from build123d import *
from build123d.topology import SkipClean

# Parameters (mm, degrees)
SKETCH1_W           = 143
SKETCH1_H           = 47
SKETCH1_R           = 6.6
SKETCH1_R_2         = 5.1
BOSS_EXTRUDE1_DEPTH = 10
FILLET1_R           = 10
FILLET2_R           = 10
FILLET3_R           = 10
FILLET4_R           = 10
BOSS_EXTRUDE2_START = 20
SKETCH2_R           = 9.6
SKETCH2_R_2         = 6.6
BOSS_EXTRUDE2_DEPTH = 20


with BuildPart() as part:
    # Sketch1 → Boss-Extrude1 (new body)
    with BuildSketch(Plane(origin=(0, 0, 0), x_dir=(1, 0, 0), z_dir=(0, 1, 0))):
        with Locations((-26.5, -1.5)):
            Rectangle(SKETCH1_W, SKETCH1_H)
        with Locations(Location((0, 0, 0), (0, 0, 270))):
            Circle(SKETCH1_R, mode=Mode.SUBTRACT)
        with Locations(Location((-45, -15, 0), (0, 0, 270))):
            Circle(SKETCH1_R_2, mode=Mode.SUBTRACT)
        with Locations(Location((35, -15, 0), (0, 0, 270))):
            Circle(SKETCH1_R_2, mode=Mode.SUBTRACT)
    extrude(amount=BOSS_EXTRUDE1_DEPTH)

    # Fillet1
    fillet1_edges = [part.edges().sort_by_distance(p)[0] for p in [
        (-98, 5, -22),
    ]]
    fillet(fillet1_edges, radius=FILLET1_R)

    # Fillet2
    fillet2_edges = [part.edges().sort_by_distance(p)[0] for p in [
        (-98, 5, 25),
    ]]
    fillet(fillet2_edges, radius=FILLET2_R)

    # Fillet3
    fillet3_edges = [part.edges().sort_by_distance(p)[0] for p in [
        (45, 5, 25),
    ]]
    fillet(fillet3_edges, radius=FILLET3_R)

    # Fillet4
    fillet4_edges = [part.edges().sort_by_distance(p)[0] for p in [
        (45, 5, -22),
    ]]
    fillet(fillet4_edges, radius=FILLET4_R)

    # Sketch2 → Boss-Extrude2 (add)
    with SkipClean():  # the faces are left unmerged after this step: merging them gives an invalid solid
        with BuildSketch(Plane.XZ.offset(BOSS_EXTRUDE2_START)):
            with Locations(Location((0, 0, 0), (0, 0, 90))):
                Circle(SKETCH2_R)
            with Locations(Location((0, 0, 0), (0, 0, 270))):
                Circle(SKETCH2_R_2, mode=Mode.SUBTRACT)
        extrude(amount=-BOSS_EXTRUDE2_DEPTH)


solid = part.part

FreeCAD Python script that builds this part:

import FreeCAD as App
import Part
import Sketcher
Q = App.Units.Quantity


def edges_at(feature, points):
    """Names of the edges that pass closest to the given points."""
    edges = feature.Shape.Edges
    near = lambda p: min(range(len(edges)), key=lambda i: edges[i].distToShape(Part.Vertex(*p))[0])
    return sorted({f"Edge{near(p) + 1}" for p in points})


def add_polygon(sketch, points):
    """Adds a closed chain of lines whose ends are joined by coincident constraints."""
    first, n = sketch.GeometryCount, len(points)
    for a, b in zip(points, points[1:] + points[:1]):
        sketch.addGeometry(Part.LineSegment(App.Vector(*a, 0), App.Vector(*b, 0)), False)
    for i in range(n):
        sketch.addConstraint(Sketcher.Constraint("Coincident", first + i, 2, first + (i + 1) % n, 1))

doc = App.newDocument("Part")
body = doc.addObject("PartDesign::Body", "Body")

# Sketch on XZ plane
sketch1 = body.newObject("Sketcher::SketchObject", "Sketch")
sketch1.AttachmentSupport = (doc.getObject("XZ_Plane"), [""])
sketch1.MapMode = "FlatFace"
add_polygon(sketch1, [(-98, -22), (-98, 25), (45, 25), (45, -22)])  # lines 0-3
sketch1.addGeometry(Part.Circle(App.Vector(-45, 15, 0), App.Vector(0, 0, 1), 5), False)  # 4
sketch1.addGeometry(Part.Circle(App.Vector(35, 15, 0), App.Vector(0, 0, 1), 5), False)  # 5
sketch1.addGeometry(Part.Circle(App.Vector(0, 0, 0), App.Vector(0, 0, 1), 7), False)  # 6
sketch1.addConstraint([
    Sketcher.Constraint("Vertical", 0),
    Sketcher.Constraint("Horizontal", 1),
    Sketcher.Constraint("Vertical", 2),
    Sketcher.Constraint("Horizontal", 3),
    Sketcher.Constraint("Coincident", 6, 3, -1, 1),
    Sketcher.Constraint("Equal", 4, 5),
    Sketcher.Constraint("Horizontal", 4, 3, 5, 3),
    Sketcher.Constraint("Diameter", 4, Q("10.2 mm")),
    Sketcher.Constraint("Diameter", 6, Q("13.2 mm")),
    Sketcher.Constraint("DistanceX", 1, 1, 1, 2, Q("143 mm")),
    Sketcher.Constraint("DistanceY", 0, 1, 0, 2, Q("47 mm")),
    Sketcher.Constraint("DistanceX", 4, 3, -1, 1, Q("45 mm")),
    Sketcher.Constraint("DistanceY", -1, 1, 4, 3, Q("15 mm")),
    Sketcher.Constraint("DistanceX", -1, 1, 5, 3, Q("35 mm")),
    Sketcher.Constraint("DistanceX", 0, 2, -1, 1, Q("98 mm")),
    Sketcher.Constraint("DistanceY", -1, 1, 0, 2, Q("25 mm")),
])
pad1 = body.newObject("PartDesign::Pad", "Pad")
pad1.Profile = sketch1
pad1.Length = 10
pad1.Reversed = True
doc.recompute()

fillet = body.newObject("PartDesign::Fillet", "Fillet")
fillet.Base = (pad1, edges_at(pad1, [(-98, 5, -22)]))
fillet.Radius = 10
doc.recompute()

fillet2 = body.newObject("PartDesign::Fillet", "Fillet001")
fillet2.Base = (fillet, edges_at(fillet, [(-98, 5, 25)]))
fillet2.Radius = 10
doc.recompute()

fillet3 = body.newObject("PartDesign::Fillet", "Fillet002")
fillet3.Base = (fillet2, edges_at(fillet2, [(45, 5, 25)]))
fillet3.Radius = 10
doc.recompute()

fillet4 = body.newObject("PartDesign::Fillet", "Fillet003")
fillet4.Base = (fillet3, edges_at(fillet3, [(45, 5, -22)]))
fillet4.Radius = 10

# Sketch on XZ plane
sketch2 = body.newObject("Sketcher::SketchObject", "Sketch001")
sketch2.AttachmentSupport = (doc.getObject("XZ_Plane"), [""])
sketch2.MapMode = "FlatFace"
sketch2.AttachmentOffset = App.Placement(App.Vector(0, 0, 20), App.Rotation())
sketch2.addGeometry([
    Part.Circle(App.Vector(0, 0, 0), App.Vector(0, 0, 1), 10),
    Part.Circle(App.Vector(0, 0, 0), App.Vector(0, 0, 1), 7),
], False)
sketch2.addConstraint([
    Sketcher.Constraint("Coincident", 0, 3, -1, 1),
    Sketcher.Constraint("Coincident", 1, 3, -1, 1),
    Sketcher.Constraint("Diameter", 0, Q("19.2 mm")),
    Sketcher.Constraint("Diameter", 1, Q("13.2 mm")),
])
pad2 = body.newObject("PartDesign::Pad", "Pad001")
pad2.Profile = sketch2
pad2.Length = 20
pad2.Reversed = True

doc.recompute()
